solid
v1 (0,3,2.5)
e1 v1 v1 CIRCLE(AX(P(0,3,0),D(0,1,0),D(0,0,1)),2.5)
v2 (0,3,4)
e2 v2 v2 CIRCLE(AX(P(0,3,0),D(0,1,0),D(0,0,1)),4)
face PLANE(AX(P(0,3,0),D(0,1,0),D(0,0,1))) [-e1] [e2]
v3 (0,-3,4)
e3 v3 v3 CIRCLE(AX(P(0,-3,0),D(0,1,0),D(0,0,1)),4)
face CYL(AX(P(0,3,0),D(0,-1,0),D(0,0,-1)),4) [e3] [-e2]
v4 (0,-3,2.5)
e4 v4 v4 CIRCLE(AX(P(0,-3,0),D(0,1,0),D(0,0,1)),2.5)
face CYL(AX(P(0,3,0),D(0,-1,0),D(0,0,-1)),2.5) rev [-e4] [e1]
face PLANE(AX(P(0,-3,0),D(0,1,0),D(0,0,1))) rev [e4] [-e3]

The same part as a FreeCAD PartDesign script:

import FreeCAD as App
import Part
import Sketcher

V = App.Vector

doc = App.newDocument("Part")
params = doc.addObject("Spreadsheet::Sheet", "Params")
for row, (alias, value) in enumerate([
    ("sketch1_diameter", "8 mm"),
    ("sketch1_diameter2", "5 mm"),
    ("pad1_length", "6 mm"),
], start=1):
    params.set(f"A{row}", alias)
    params.set(f"B{row}", "=" + value)
    params.setAlias(f"B{row}", alias)

body = doc.addObject("PartDesign::Body", "Body")

# Sketch on XZ plane
sketch1 = body.newObject("Sketcher::SketchObject", "Sketch")
sketch1.AttachmentSupport = (doc.getObject("XZ_Plane"), [""])
sketch1.MapMode = "FlatFace"
sketch1.addGeometry([
    Part.Circle(V(0, 0, 0), V(0, 0, 1), 4),
    Part.Circle(V(0, 0, 0), V(0, 0, 1), 2.5),
], False)
sketch1.addConstraint([
    Sketcher.Constraint("Coincident", 0, 3, -1, 1),
    Sketcher.Constraint("Coincident", 1, 3, -1, 1),
    Sketcher.Constraint("Diameter", 0, 8.0),
    Sketcher.Constraint("Diameter", 1, 5.0),
])
sketch1.setExpression("Constraints[2]", "Params.sketch1_diameter")
sketch1.setExpression("Constraints[3]", "Params.sketch1_diameter2")
pad1 = body.newObject("PartDesign::Pad", "Pad")
pad1.Profile = sketch1
pad1.setExpression("Length", "Params.pad1_length")
pad1.Midplane = True

doc.recompute()
